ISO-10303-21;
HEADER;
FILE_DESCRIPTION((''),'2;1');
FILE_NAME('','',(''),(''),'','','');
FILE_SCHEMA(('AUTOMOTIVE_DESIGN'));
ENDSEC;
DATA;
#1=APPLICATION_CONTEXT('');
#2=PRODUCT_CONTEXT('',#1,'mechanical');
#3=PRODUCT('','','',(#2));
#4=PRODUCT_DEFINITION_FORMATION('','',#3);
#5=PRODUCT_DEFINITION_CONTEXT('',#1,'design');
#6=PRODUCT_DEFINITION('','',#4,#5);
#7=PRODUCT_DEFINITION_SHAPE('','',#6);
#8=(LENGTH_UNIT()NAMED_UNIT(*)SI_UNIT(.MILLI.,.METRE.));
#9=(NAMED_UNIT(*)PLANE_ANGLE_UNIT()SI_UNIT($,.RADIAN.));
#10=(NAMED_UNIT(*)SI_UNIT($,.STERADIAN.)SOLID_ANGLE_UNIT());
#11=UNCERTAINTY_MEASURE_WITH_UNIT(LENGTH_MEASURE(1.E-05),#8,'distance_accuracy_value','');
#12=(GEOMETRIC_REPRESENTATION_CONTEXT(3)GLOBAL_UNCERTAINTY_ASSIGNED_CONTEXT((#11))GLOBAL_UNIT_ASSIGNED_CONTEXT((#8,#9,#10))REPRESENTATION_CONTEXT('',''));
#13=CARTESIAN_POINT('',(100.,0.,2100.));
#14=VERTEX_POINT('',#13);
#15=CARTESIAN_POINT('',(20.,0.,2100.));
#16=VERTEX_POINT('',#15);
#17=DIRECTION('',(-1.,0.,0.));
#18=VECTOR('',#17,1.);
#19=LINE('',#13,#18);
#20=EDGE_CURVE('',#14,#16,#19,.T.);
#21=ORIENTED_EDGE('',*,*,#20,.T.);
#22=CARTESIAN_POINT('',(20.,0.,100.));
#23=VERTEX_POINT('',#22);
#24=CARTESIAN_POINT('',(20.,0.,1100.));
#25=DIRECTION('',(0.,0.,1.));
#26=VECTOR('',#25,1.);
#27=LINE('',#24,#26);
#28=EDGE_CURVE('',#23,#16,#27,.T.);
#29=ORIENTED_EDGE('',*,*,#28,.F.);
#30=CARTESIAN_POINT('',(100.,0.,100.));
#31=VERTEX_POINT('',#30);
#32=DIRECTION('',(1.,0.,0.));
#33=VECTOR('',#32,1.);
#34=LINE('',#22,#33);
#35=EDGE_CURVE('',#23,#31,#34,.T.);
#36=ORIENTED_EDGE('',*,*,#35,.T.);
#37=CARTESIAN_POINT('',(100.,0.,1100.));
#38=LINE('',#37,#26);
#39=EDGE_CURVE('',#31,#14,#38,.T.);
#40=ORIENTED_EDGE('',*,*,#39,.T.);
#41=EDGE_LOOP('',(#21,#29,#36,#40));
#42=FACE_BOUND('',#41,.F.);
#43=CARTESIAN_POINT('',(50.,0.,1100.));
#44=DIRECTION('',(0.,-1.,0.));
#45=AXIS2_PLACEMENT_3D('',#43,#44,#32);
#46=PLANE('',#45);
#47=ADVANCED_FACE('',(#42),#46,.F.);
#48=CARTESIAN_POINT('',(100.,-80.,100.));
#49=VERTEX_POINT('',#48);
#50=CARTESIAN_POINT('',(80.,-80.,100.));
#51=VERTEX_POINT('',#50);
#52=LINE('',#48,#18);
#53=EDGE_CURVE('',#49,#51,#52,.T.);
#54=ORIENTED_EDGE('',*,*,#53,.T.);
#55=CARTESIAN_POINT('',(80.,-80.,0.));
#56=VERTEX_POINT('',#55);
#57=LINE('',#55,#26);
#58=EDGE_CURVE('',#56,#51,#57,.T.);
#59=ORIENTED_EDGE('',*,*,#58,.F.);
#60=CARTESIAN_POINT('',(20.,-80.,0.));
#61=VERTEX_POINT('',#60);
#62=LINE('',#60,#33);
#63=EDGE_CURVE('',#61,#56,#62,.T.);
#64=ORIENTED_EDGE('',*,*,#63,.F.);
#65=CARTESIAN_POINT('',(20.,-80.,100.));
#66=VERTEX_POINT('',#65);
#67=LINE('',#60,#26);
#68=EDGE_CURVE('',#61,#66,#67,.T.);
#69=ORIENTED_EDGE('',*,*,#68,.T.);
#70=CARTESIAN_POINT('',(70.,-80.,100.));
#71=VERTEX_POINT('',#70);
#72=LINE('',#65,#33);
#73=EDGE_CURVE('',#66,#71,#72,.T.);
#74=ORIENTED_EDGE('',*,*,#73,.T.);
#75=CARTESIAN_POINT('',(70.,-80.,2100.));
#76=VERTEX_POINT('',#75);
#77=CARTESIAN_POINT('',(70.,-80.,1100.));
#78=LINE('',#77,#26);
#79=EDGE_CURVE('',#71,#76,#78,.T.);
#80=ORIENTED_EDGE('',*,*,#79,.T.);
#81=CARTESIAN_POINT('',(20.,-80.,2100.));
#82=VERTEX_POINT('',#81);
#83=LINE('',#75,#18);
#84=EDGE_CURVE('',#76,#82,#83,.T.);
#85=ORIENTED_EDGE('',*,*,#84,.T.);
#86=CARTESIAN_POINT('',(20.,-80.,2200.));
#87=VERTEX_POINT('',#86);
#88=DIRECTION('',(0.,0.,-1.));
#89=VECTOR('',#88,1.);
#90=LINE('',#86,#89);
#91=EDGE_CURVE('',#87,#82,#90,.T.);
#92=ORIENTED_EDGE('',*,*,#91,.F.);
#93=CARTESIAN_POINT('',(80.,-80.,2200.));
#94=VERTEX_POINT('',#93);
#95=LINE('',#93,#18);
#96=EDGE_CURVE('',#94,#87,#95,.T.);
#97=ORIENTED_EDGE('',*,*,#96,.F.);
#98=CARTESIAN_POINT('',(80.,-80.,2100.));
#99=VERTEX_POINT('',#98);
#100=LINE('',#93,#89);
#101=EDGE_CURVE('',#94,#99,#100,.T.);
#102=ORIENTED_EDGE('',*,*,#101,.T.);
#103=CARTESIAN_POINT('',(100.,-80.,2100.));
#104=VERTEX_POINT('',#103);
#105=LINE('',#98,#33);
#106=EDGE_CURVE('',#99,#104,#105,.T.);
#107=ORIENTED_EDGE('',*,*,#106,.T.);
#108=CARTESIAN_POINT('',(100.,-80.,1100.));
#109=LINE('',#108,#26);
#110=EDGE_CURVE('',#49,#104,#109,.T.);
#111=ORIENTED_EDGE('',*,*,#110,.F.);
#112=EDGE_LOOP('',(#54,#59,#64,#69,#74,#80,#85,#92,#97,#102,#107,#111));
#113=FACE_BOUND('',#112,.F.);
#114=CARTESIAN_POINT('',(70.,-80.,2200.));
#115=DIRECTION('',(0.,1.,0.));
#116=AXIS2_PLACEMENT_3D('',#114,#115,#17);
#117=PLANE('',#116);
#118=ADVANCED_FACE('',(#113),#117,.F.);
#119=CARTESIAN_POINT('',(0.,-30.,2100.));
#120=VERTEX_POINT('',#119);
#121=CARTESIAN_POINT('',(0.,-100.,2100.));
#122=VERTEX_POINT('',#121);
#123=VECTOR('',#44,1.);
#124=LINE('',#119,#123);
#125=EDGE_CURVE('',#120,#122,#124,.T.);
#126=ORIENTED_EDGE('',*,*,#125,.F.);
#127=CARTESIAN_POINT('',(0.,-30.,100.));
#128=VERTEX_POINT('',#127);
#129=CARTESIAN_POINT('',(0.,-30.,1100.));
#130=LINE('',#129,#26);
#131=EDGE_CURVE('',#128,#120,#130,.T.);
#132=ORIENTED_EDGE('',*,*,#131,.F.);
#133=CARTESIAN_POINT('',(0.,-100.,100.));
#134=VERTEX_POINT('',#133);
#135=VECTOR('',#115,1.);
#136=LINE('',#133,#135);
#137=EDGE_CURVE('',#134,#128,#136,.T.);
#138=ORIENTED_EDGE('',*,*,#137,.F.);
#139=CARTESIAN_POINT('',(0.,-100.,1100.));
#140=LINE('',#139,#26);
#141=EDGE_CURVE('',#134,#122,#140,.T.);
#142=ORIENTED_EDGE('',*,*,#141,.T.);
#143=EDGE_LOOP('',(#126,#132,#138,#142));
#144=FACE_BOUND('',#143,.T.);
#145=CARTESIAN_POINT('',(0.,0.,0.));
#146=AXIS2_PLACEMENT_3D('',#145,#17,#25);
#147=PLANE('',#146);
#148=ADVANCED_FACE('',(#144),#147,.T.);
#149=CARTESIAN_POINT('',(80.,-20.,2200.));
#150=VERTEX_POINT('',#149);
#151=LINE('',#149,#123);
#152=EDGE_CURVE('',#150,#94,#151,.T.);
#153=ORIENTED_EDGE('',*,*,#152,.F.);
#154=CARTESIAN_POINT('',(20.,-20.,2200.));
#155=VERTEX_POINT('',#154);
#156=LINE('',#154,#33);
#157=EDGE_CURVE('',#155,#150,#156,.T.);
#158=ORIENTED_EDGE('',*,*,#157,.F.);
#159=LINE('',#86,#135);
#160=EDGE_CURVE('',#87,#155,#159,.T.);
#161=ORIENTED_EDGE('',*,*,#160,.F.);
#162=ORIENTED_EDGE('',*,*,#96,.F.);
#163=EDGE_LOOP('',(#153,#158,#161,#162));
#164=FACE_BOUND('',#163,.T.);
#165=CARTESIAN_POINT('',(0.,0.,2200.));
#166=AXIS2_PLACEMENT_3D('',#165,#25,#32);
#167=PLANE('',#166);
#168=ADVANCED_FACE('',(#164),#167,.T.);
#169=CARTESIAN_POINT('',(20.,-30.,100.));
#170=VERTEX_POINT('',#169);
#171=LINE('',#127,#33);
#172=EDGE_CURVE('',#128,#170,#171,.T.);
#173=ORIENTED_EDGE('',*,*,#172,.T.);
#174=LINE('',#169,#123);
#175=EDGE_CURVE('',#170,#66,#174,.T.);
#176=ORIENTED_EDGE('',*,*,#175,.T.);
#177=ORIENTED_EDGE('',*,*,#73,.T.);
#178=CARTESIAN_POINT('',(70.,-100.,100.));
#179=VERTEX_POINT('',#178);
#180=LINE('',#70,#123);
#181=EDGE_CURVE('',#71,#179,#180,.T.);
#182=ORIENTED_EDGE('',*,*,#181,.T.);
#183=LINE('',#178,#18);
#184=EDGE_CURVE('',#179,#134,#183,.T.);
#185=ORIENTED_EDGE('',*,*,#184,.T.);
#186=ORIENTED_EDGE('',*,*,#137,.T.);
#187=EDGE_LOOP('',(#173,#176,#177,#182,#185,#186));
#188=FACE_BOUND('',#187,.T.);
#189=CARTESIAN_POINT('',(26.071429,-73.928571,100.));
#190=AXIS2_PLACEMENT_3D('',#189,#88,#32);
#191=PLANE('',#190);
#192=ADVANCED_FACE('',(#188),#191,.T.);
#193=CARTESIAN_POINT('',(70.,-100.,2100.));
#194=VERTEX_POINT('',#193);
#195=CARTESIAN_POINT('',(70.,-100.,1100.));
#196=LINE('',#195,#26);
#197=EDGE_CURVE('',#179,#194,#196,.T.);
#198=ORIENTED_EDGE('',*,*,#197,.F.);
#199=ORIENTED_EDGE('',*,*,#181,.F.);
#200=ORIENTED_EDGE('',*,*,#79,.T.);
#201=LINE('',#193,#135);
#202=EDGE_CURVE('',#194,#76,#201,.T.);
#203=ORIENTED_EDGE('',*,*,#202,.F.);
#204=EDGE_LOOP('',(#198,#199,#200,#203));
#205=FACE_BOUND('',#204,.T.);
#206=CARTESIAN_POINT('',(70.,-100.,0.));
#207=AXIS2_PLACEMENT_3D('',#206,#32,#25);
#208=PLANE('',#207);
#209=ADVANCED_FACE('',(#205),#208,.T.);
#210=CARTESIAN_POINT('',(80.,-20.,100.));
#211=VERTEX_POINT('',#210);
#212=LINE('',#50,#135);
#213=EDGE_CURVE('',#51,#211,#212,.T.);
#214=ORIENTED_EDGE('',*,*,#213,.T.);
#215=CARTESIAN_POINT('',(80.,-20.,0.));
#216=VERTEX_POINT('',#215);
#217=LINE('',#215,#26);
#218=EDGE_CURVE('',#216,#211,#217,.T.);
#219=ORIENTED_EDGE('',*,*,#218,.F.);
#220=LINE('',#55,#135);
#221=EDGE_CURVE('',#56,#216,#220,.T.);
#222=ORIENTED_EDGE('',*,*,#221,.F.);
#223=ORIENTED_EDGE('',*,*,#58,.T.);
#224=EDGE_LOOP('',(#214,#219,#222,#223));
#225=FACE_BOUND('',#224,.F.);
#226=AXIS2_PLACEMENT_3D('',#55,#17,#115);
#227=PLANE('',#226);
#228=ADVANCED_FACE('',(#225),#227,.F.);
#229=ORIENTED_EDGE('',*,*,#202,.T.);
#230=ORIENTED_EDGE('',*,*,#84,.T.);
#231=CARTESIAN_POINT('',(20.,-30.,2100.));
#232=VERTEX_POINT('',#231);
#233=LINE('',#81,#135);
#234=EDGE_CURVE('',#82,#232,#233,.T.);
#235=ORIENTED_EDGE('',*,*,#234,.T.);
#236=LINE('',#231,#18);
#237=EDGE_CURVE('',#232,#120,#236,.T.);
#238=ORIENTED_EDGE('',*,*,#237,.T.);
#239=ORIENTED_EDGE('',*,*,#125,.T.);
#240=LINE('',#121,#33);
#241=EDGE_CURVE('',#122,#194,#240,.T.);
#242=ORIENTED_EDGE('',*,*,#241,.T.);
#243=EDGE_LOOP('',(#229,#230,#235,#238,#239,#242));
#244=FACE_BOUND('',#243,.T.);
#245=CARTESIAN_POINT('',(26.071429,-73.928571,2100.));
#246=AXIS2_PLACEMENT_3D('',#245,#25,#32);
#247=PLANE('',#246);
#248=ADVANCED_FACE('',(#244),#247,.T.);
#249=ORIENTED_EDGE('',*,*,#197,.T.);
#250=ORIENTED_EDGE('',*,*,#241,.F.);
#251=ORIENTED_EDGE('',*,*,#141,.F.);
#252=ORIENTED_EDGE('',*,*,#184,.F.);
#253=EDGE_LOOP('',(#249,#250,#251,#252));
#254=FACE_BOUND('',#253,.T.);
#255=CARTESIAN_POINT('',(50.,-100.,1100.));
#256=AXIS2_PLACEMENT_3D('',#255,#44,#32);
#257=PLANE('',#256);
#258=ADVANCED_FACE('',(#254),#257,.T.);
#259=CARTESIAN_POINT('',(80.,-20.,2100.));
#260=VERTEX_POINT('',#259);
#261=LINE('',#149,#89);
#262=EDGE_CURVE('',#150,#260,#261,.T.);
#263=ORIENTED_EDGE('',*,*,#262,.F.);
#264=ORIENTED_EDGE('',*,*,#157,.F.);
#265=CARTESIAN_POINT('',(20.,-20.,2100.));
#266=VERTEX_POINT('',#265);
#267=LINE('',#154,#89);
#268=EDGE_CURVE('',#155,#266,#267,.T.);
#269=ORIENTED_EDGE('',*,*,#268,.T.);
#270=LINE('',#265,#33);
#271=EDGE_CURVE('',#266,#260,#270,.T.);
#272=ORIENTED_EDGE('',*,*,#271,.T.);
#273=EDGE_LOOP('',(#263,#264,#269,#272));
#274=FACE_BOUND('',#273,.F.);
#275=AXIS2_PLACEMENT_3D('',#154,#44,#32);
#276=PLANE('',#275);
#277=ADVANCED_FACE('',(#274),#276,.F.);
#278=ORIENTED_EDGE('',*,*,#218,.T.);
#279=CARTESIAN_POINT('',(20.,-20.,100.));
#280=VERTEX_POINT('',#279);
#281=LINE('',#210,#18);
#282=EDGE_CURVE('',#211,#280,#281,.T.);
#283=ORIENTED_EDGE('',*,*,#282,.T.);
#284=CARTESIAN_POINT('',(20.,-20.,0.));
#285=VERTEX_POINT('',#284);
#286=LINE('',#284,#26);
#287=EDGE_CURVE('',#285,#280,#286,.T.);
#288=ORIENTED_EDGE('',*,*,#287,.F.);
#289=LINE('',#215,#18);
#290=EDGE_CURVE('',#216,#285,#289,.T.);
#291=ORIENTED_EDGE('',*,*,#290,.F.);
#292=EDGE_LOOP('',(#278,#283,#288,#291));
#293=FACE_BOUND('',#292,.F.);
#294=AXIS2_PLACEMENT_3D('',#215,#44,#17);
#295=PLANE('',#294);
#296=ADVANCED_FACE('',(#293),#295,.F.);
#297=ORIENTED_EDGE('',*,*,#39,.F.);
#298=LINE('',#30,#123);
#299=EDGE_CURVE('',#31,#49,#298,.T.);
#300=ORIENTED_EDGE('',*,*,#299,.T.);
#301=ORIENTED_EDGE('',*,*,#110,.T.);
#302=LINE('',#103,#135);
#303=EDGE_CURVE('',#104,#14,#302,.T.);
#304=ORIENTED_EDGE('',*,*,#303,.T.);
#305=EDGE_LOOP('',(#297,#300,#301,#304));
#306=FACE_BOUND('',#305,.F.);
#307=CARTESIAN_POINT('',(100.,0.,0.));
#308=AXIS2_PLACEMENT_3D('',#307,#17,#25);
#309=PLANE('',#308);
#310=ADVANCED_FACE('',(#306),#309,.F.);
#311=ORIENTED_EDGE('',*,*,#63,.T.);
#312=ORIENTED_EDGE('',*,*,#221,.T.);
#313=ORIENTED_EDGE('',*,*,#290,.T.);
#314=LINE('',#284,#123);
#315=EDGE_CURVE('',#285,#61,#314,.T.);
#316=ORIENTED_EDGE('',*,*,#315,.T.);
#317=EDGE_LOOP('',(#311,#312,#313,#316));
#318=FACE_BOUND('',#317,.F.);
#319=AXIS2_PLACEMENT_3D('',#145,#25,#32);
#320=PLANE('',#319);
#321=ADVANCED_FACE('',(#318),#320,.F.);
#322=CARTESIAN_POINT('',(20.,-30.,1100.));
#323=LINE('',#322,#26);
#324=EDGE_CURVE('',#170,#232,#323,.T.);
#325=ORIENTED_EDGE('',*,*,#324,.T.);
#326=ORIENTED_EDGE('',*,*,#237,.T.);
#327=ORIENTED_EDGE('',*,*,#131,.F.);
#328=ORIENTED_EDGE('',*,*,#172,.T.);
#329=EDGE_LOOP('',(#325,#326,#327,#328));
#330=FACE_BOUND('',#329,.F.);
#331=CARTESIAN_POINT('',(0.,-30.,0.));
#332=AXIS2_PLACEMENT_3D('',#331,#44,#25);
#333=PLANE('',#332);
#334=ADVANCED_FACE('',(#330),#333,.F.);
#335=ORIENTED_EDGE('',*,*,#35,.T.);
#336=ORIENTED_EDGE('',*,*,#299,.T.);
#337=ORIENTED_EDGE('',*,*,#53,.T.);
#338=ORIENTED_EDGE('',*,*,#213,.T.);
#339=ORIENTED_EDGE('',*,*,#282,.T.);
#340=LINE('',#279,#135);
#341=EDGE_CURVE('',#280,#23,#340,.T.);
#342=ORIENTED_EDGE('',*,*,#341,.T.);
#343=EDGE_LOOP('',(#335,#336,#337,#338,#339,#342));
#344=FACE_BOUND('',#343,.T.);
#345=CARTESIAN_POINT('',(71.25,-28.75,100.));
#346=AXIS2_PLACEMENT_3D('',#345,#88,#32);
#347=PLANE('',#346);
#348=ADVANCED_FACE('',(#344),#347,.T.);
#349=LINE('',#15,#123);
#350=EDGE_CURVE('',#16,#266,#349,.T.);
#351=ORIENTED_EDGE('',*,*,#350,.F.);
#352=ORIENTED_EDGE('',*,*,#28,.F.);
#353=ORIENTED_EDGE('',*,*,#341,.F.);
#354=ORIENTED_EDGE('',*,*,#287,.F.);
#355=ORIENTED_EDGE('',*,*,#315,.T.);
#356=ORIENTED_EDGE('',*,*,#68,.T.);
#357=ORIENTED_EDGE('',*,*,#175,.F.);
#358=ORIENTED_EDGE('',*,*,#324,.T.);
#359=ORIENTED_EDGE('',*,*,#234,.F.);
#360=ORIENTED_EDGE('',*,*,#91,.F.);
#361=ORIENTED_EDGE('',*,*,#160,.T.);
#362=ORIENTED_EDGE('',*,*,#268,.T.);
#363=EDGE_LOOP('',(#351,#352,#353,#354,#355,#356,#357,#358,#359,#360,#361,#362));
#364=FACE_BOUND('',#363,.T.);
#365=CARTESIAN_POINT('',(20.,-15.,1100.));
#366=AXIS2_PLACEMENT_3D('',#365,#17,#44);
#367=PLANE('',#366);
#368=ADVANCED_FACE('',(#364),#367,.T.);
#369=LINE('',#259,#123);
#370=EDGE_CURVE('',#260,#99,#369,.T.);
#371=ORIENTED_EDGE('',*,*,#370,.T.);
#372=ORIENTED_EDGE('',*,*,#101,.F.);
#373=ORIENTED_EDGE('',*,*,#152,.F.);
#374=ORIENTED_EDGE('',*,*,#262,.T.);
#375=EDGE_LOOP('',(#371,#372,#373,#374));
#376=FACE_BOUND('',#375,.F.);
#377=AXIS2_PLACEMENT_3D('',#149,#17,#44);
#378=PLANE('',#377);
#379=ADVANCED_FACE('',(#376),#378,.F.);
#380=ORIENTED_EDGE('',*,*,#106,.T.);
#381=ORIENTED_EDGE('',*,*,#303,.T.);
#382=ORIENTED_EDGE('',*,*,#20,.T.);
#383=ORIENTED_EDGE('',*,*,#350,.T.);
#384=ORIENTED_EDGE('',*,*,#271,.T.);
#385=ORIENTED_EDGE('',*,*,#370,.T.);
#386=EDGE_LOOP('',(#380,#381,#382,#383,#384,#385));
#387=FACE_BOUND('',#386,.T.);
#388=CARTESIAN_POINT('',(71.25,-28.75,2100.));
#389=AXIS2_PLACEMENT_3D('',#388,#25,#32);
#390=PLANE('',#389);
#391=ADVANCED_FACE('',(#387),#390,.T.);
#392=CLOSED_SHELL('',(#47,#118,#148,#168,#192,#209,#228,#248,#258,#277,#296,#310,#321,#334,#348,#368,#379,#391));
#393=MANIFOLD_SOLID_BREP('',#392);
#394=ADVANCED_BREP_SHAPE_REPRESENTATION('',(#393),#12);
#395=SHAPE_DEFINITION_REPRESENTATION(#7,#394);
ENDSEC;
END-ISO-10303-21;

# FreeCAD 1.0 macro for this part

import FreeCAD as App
import Part
import Sketcher
from FreeCAD import Vector


def add_polygon(sketch, points):
    """Adds a closed chain of lines whose ends are joined by coincident constraints."""
    first, n = sketch.GeometryCount, len(points)
    for a, b in zip(points, points[1:] + points[:1]):
        sketch.addGeometry(Part.LineSegment(App.Vector(*a, 0), App.Vector(*b, 0)), False)
    for i in range(n):
        sketch.addConstraint(Sketcher.Constraint("Coincident", first + i, 2, first + (i + 1) % n, 1))

doc = App.newDocument("Part")
body = doc.addObject("PartDesign::Body", "Body")

sketch1 = doc.addObject("Sketcher::SketchObject", "Sketch")
body.addObject(sketch1)
sketch1.AttachmentSupport = (doc.XZ_Plane, [""])
sketch1.MapMode = "FlatFace"
add_polygon(sketch1, [(0, 2200), (0, 0), (100, 0), (100, 2200)])
sketch1.addConstraint([
    Sketcher.Constraint("Vertical", 0),
    Sketcher.Constraint("Horizontal", 1),
    Sketcher.Constraint("Vertical", 2),
    Sketcher.Constraint("Horizontal", 3),
    Sketcher.Constraint("Coincident", 0, 2, -1, 1),
    Sketcher.Constraint("DistanceX", 1, 1, 1, 2, 100.0),
    Sketcher.Constraint("DistanceY", 0, 2, 0, 1, 2200.0),
])
pad1 = doc.addObject("PartDesign::Pad", "Pad")
body.addObject(pad1)
pad1.Profile = sketch1
pad1.Length = 100

sketch2 = doc.addObject("Sketcher::SketchObject", "Sketch001")
body.addObject(sketch2)
sketch2.AttachmentSupport = (doc.XZ_Plane, [""])
sketch2.MapMode = "FlatFace"
sketch2.AttachmentOffset = App.Placement(Vector(0, 0, 100), App.Rotation())
add_polygon(sketch2, [(70, 2200), (70, 0), (100, 0), (100, 2200)])
sketch2.addConstraint([
    Sketcher.Constraint("Vertical", 0),
    Sketcher.Constraint("Horizontal", 1),
    Sketcher.Constraint("Vertical", 2),
    Sketcher.Constraint("Horizontal", 3),
    Sketcher.Constraint("PointOnObject", 0, 2, -1),
    Sketcher.Constraint("DistanceX", 1, 1, 1, 2, 30.0),
    Sketcher.Constraint("DistanceY", 0, 2, 0, 1, 2200.0),
    Sketcher.Constraint("DistanceX", -1, 1, 0, 2, 70.0),
])
pocket1 = doc.addObject("PartDesign::Pocket", "Pocket")
body.addObject(pocket1)
pocket1.Profile = sketch2
pocket1.Length = 20

sketch3 = doc.addObject("Sketcher::SketchObject", "Sketch002")
body.addObject(sketch3)
sketch3.AttachmentSupport = (doc.YZ_Plane, [""])
sketch3.MapMode = "FlatFace"
add_polygon(sketch3, [(0, 2200), (0, 0), (-30, 0), (-30, 2200)])
sketch3.addConstraint([
    Sketcher.Constraint("Vertical", 0),
    Sketcher.Constraint("Horizontal", 1),
    Sketcher.Constraint("Vertical", 2),
    Sketcher.Constraint("Horizontal", 3),
    Sketcher.Constraint("Coincident", 0, 2, -1, 1),
    Sketcher.Constraint("DistanceX", 1, 2, 1, 1, 30.0),
    Sketcher.Constraint("DistanceY", 0, 2, 0, 1, 2200.0),
])
pocket2 = doc.addObject("PartDesign::Pocket", "Pocket001")
body.addObject(pocket2)
pocket2.Profile = sketch3
pocket2.Length = 20
pocket2.Reversed = True

sketch4 = doc.addObject("Sketcher::SketchObject", "Sketch003")
body.addObject(sketch4)
sketch4.AttachmentSupport = (doc.XY_Plane, [""])
sketch4.MapMode = "FlatFace"
sketch4.AttachmentOffset = App.Placement(Vector(0, 0, 2200), App.Rotation())
add_polygon(sketch4, [(20, -20), (80, -20), (80, -80), (100, -80), (100, 0), (20, 0)])
add_polygon(sketch4, [(20, -80), (20, -30), (0, -30), (0, -100), (70, -100), (70, -80)])
sketch4.addConstraint([
    Sketcher.Constraint("Horizontal", 0),
    Sketcher.Constraint("Vertical", 1),
    Sketcher.Constraint("Horizontal", 2),
    Sketcher.Constraint("Vertical", 3),
    Sketcher.Constraint("Horizontal", 4),
    Sketcher.Constraint("Vertical", 5),
    Sketcher.Constraint("Vertical", 6),
    Sketcher.Constraint("Horizontal", 7),
    Sketcher.Constraint("Vertical", 8),
    Sketcher.Constraint("Horizontal", 9),
    Sketcher.Constraint("Vertical", 10),
    Sketcher.Constraint("Horizontal", 11),
    Sketcher.Constraint("PointOnObject", 3, 2, -1),
    Sketcher.Constraint("PointOnObject", 7, 2, -2),
    Sketcher.Constraint("Horizontal", 2, 2, 10, 2),
    Sketcher.Constraint("Vertical", 5, 2, 6, 2),
    Sketcher.Constraint("Equal", 2, 7),
    Sketcher.Constraint("Equal", 0, 1),
    Sketcher.Constraint("Equal", 4, 3),
    Sketcher.Constraint("Equal", 11, 6),
    Sketcher.Constraint("Equal", 9, 8),
    Sketcher.Constraint("DistanceX", 0, 1, 0, 2, 60.0),
    Sketcher.Constraint("DistanceX", 2, 1, 2, 2, 20.0),
    Sketcher.Constraint("DistanceX", 9, 1, 9, 2, 70.0),
])
pocket3 = doc.addObject("PartDesign::Pocket", "Pocket002")
body.addObject(pocket3)
pocket3.Profile = sketch4
pocket3.Length = 100

sketch5 = doc.addObject("Sketcher::SketchObject", "Sketch004")
body.addObject(sketch5)
sketch5.AttachmentSupport = (doc.XY_Plane, [""])
sketch5.MapMode = "FlatFace"
add_polygon(sketch5, [(0, -30), (20, -30), (20, -80), (70, -80), (70, -100), (0, -100)])
add_polygon(sketch5, [(80, -20), (20, -20), (20, 0), (100, 0), (100, -80), (80, -80)])
sketch5.addConstraint([
    Sketcher.Constraint("Horizontal", 0),
    Sketcher.Constraint("Vertical", 1),
    Sketcher.Constraint("Horizontal", 2),
    Sketcher.Constraint("Vertical", 3),
    Sketcher.Constraint("Horizontal", 4),
    Sketcher.Constraint("Vertical", 5),
    Sketcher.Constraint("Horizontal", 6),
    Sketcher.Constraint("Vertical", 7),
    Sketcher.Constraint("Horizontal", 8),
    Sketcher.Constraint("Vertical", 9),
    Sketcher.Constraint("Horizontal", 10),
    Sketcher.Constraint("Vertical", 11),
    Sketcher.Constraint("PointOnObject", 4, 2, -2),
    Sketcher.Constraint("PointOnObject", 7, 2, -1),
    Sketcher.Constraint("Horizontal", 2, 2, 9, 2),
    Sketcher.Constraint("Vertical", 1, 2, 6, 2),
    Sketcher.Constraint("Equal", 0, 10),
    Sketcher.Constraint("Equal", 2, 1),
    Sketcher.Constraint("Equal", 10, 3),
    Sketcher.Constraint("Equal", 3, 7),
    Sketcher.Constraint("Equal", 8, 9),
    Sketcher.Constraint("DistanceX", 0, 1, 0, 2, 20.0),
    Sketcher.Constraint("DistanceX", 2, 1, 2, 2, 50.0),
    Sketcher.Constraint("DistanceX", 6, 2, 6, 1, 60.0),
])
pocket4 = doc.addObject("PartDesign::Pocket", "Pocket003")
body.addObject(pocket4)
pocket4.Profile = sketch5
pocket4.Length = 100
pocket4.Reversed = True

doc.recompute()
